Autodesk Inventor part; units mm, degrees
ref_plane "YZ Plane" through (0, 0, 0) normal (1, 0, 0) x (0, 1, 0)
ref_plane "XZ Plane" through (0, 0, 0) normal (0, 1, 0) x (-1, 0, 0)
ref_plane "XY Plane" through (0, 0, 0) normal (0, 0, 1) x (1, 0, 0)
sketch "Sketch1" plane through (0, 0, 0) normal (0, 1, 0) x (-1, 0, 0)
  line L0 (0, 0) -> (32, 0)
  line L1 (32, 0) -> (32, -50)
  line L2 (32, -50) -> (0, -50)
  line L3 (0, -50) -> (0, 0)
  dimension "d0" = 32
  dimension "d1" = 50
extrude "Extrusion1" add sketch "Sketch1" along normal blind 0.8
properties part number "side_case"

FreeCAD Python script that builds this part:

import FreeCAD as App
import Part
import Sketcher

V = App.Vector
Q = App.Units.Quantity

doc = App.newDocument("Part")
body = doc.addObject("PartDesign::Body", "Body")

sketch1 = body.newObject("Sketcher::SketchObject", "Sketch")
sketch1.AttachmentSupport = (doc.getObject("XZ_Plane"), [""])
sketch1.MapMode = "FlatFace"
sketch1.addGeometry(Part.LineSegment(V(-32, 0, 0), V(0, 0, 0)), False)
sketch1.addGeometry(Part.LineSegment(V(0, 0, 0), V(0, -50, 0)), False)
sketch1.addGeometry(Part.LineSegment(V(0, -50, 0), V(-32, -50, 0)), False)
sketch1.addGeometry(Part.LineSegment(V(-32, -50, 0), V(-32, 0, 0)), False)
sketch1.addConstraint(Sketcher.Constraint("Coincident", 0, 2, 1, 1))
sketch1.addConstraint(Sketcher.Constraint("Coincident", 1, 2, 2, 1))
sketch1.addConstraint(Sketcher.Constraint("Coincident", 2, 2, 3, 1))
sketch1.addConstraint(Sketcher.Constraint("Coincident", 3, 2, 0, 1))
sketch1.addConstraint(Sketcher.Constraint("Horizontal", 0))
sketch1.addConstraint(Sketcher.Constraint("Vertical", 1))
sketch1.addConstraint(Sketcher.Constraint("Horizontal", 2))
sketch1.addConstraint(Sketcher.Constraint("Vertical", 3))
sketch1.addConstraint(Sketcher.Constraint("Coincident", 0, 2, -1, 1))
sketch1.addConstraint(Sketcher.Constraint("DistanceX", 0, 1, 0, 2, Q("32 mm")))
sketch1.addConstraint(Sketcher.Constraint("DistanceY", 1, 2, 1, 1, Q("50 mm")))
pad1 = body.newObject("PartDesign::Pad", "Pad")
pad1.Profile = sketch1
pad1.Length = 0.8
pad1.Reversed = True

doc.recompute()
